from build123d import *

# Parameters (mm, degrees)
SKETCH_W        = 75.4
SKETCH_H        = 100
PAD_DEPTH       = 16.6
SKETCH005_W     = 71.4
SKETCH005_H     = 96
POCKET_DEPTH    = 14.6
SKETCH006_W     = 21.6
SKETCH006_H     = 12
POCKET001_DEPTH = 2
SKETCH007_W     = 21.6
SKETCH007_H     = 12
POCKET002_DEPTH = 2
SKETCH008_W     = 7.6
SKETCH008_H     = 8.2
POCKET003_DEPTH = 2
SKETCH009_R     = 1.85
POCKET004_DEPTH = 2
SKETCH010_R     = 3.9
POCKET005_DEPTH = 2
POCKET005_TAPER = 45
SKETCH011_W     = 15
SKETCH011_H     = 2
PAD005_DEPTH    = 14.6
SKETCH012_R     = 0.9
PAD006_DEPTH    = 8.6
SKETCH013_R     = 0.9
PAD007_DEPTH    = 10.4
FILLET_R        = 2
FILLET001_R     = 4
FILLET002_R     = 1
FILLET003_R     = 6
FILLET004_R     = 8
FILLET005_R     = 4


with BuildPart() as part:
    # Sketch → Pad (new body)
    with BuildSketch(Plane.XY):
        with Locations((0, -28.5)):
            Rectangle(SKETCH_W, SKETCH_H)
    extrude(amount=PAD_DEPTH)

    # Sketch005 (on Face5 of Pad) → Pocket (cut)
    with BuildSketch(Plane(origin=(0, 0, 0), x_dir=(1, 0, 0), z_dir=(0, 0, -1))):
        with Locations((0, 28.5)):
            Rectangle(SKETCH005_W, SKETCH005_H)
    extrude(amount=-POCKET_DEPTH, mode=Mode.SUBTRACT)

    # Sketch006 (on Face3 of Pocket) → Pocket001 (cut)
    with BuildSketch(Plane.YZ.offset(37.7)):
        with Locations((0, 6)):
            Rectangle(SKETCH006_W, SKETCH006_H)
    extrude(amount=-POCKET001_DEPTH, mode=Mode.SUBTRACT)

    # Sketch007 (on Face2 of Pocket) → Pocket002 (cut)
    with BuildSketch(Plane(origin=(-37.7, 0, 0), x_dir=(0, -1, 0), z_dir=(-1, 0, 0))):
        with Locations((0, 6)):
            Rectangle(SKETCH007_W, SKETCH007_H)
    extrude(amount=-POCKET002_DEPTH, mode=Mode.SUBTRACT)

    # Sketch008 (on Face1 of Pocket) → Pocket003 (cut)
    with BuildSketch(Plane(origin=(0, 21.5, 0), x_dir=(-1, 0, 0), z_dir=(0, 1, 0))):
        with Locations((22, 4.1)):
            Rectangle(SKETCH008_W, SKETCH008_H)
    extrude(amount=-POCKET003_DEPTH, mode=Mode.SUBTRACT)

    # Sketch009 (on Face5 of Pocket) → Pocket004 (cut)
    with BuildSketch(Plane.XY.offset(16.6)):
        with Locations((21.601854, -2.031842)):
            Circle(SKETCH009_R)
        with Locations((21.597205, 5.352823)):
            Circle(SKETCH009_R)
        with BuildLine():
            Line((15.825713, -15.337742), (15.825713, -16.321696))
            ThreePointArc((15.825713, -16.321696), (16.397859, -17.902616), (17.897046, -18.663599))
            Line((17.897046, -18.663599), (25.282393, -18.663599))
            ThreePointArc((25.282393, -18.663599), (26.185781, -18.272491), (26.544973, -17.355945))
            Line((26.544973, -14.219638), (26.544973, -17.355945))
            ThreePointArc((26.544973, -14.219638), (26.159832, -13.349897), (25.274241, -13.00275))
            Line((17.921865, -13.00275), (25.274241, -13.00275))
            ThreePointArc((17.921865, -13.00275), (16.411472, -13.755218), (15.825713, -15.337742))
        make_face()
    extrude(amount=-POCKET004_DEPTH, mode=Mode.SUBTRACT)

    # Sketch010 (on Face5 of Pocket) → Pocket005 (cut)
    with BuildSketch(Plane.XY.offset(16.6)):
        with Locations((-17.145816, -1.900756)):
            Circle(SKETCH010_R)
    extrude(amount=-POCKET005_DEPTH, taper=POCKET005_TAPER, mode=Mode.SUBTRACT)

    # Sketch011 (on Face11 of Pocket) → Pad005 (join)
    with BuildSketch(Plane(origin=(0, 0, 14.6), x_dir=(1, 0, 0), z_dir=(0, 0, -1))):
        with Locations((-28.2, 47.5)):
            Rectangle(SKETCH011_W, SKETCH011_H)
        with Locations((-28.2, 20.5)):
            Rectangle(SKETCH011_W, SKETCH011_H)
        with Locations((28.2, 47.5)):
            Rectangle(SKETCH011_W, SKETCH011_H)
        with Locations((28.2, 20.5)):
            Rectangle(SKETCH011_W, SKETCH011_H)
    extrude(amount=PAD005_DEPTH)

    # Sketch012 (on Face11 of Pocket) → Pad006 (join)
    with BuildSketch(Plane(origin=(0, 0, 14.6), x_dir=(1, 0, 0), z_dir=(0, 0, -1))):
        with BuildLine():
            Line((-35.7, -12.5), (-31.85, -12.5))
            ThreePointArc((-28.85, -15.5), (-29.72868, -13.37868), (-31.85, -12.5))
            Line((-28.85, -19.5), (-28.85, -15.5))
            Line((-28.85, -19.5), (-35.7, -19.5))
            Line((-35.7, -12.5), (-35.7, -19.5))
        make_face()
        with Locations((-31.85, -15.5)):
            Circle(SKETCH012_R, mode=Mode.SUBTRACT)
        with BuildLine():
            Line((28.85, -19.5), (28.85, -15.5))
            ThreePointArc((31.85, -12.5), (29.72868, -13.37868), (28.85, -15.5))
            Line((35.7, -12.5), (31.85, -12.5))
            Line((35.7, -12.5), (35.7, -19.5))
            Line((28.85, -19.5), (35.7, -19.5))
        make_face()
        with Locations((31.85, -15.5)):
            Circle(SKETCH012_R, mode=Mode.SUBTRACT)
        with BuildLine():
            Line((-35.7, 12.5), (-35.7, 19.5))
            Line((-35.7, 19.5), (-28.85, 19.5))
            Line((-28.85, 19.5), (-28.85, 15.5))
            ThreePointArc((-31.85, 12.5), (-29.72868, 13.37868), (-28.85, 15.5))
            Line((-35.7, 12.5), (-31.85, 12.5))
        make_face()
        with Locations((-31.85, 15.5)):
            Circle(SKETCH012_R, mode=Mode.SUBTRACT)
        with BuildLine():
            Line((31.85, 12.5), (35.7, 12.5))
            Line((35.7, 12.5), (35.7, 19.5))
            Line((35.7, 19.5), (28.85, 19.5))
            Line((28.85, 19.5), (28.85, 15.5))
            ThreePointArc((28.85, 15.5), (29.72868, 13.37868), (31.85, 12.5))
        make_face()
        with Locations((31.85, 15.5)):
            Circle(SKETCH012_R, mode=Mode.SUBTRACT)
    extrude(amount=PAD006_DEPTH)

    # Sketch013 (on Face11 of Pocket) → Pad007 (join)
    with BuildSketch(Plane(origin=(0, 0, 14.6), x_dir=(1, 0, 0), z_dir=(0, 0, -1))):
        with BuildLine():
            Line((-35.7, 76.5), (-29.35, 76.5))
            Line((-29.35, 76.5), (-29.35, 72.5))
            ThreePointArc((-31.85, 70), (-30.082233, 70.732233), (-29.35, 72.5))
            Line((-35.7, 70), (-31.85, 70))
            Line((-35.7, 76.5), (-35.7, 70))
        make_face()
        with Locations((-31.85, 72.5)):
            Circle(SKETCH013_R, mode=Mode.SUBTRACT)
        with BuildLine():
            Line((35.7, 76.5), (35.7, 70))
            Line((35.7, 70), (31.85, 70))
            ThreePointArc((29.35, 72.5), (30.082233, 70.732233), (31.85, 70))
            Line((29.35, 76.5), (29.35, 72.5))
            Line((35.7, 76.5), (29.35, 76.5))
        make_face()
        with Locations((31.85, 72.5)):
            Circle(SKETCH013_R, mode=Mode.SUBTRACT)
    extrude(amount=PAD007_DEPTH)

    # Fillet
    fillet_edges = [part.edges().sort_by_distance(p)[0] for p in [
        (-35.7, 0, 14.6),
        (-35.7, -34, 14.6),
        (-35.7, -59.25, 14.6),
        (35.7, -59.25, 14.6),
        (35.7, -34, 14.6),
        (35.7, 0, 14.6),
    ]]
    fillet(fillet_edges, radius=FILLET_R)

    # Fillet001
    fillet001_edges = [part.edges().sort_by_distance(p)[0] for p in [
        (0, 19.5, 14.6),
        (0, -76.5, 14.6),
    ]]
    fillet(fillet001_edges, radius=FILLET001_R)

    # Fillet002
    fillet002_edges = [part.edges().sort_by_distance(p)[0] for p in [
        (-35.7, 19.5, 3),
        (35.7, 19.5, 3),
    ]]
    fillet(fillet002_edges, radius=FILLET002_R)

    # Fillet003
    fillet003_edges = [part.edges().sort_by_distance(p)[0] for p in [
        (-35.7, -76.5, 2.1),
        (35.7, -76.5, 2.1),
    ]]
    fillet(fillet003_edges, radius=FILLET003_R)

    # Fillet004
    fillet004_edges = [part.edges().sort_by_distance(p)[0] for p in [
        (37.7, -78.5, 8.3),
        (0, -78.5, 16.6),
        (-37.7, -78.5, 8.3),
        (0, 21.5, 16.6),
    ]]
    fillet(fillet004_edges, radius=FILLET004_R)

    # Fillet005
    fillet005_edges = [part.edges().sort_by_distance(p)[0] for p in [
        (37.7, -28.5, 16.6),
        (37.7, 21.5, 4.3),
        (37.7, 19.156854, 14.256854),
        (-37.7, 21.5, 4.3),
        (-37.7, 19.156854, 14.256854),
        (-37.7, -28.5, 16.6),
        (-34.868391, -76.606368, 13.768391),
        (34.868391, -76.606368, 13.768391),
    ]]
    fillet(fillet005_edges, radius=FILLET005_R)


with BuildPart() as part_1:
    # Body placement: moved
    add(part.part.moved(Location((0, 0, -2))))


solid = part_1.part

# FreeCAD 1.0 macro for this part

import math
import FreeCAD as App
import Part
import Sketcher
Q = App.Units.Quantity


def edges_at(feature, points):
    """Names of the edges that pass closest to the given points."""
    edges = feature.Shape.Edges
    near = lambda p: min(range(len(edges)), key=lambda i: edges[i].distToShape(Part.Vertex(*p))[0])
    return sorted({f"Edge{near(p) + 1}" for p in points})


def add_polygon(sketch, points):
    """Adds a closed chain of lines whose ends are joined by coincident constraints."""
    first, n = sketch.GeometryCount, len(points)
    for a, b in zip(points, points[1:] + points[:1]):
        sketch.addGeometry(Part.LineSegment(App.Vector(*a, 0), App.Vector(*b, 0)), False)
    for i in range(n):
        sketch.addConstraint(Sketcher.Constraint("Coincident", first + i, 2, first + (i + 1) % n, 1))

doc = App.newDocument("Part")
body = doc.addObject("PartDesign::Body", "Body")

sketch1 = doc.addObject("Sketcher::SketchObject", "Sketch")
body.addObject(sketch1)
sketch1.AttachmentSupport = (doc.XY_Plane, [""])
sketch1.MapMode = "FlatFace"
add_polygon(sketch1, [(-38, 22), (-38, -78), (38, -78), (38, 22)])
sketch1.addConstraint(Sketcher.Constraint("Vertical", 0))
sketch1.addConstraint(Sketcher.Constraint("Horizontal", 1))
sketch1.addConstraint(Sketcher.Constraint("Vertical", 2))
sketch1.addConstraint(Sketcher.Constraint("Horizontal", 3))
sketch1.addConstraint(Sketcher.Constraint("DistanceY", 0, 2, 0, 1, Q("100 mm")))
sketch1.addConstraint(Sketcher.Constraint("DistanceX", 1, 1, 1, 2, Q("75.4 mm")))
sketch1.addConstraint(Sketcher.Constraint("DistanceX", 0, 2, -1, 1, Q("37.7 mm")))
sketch1.addConstraint(Sketcher.Constraint("DistanceY", 0, 2, -1, 1, Q("78.5 mm")))
pad1 = doc.addObject("PartDesign::Pad", "Pad")
body.addObject(pad1)
pad1.Profile = sketch1
pad1.Length = 16.6

sketch2 = doc.addObject("Sketcher::SketchObject", "Sketch001")
body.addObject(sketch2)
sketch2.AttachmentSupport = (doc.XY_Plane, [""])
sketch2.MapMode = "FlatFace"
add_polygon(sketch2, [(-36, -76), (-36, 20), (36, 20), (36, -76)])
sketch2.addConstraint(Sketcher.Constraint("Vertical", 0))
sketch2.addConstraint(Sketcher.Constraint("Horizontal", 1))
sketch2.addConstraint(Sketcher.Constraint("Vertical", 2))
sketch2.addConstraint(Sketcher.Constraint("Horizontal", 3))
sketch2.addConstraint(Sketcher.Constraint("DistanceY", 0, 1, 0, 2, Q("96 mm")))
sketch2.addConstraint(Sketcher.Constraint("DistanceX", 1, 1, 1, 2, Q("71.4 mm")))
sketch2.addConstraint(Sketcher.Constraint("DistanceX", 0, 2, -1, 1, Q("35.7 mm")))
sketch2.addConstraint(Sketcher.Constraint("DistanceY", -1, 1, 0, 2, Q("19.5 mm")))
pocket1 = doc.addObject("PartDesign::Pocket", "Pocket")
body.addObject(pocket1)
pocket1.Profile = sketch2
pocket1.Length = 14.6
pocket1.Reversed = True

sketch3 = doc.addObject("Sketcher::SketchObject", "Sketch002")
body.addObject(sketch3)
sketch3.AttachmentSupport = (doc.YZ_Plane, [""])
sketch3.MapMode = "FlatFace"
sketch3.AttachmentOffset = App.Placement(App.Vector(0, 0, 37.7), App.Rotation())
add_polygon(sketch3, [(-11, 12), (-11, 0), (11, 0), (11, 12)])
sketch3.addConstraint(Sketcher.Constraint("Vertical", 0))
sketch3.addConstraint(Sketcher.Constraint("Horizontal", 1))
sketch3.addConstraint(Sketcher.Constraint("Vertical", 2))
sketch3.addConstraint(Sketcher.Constraint("Horizontal", 3))
sketch3.addConstraint(Sketcher.Constraint("Symmetric", 0, 2, 1, 2, -1, 1))
sketch3.addConstraint(Sketcher.Constraint("DistanceY", 0, 2, 0, 1, Q("12 mm")))
sketch3.addConstraint(Sketcher.Constraint("DistanceX", 1, 1, 1, 2, Q("21.6 mm")))
pocket2 = doc.addObject("PartDesign::Pocket", "Pocket001")
body.addObject(pocket2)
pocket2.Profile = sketch3
pocket2.Length = 2

sketch4 = doc.addObject("Sketcher::SketchObject", "Sketch003")
body.addObject(sketch4)
sketch4.AttachmentSupport = (doc.YZ_Plane, [""])
sketch4.MapMode = "FlatFace"
sketch4.AttachmentOffset = App.Placement(App.Vector(0, 0, -37.7), App.Rotation())
add_polygon(sketch4, [(11, 12), (11, 0), (-11, 0), (-11, 12)])
sketch4.addConstraint(Sketcher.Constraint("Vertical", 0))
sketch4.addConstraint(Sketcher.Constraint("Horizontal", 1))
sketch4.addConstraint(Sketcher.Constraint("Vertical", 2))
sketch4.addConstraint(Sketcher.Constraint("Horizontal", 3))
sketch4.addConstraint(Sketcher.Constraint("Symmetric", 0, 2, 1, 2, -1, 1))
sketch4.addConstraint(Sketcher.Constraint("DistanceY", 0, 2, 0, 1, Q("12 mm")))
sketch4.addConstraint(Sketcher.Constraint("DistanceX", 1, 2, 1, 1, Q("21.6 mm")))
pocket3 = doc.addObject("PartDesign::Pocket", "Pocket002")
body.addObject(pocket3)
pocket3.Profile = sketch4
pocket3.Length = 2
pocket3.Reversed = True

sketch5 = doc.addObject("Sketcher::SketchObject", "Sketch004")
body.addObject(sketch5)
sketch5.AttachmentSupport = (doc.XZ_Plane, [""])
sketch5.MapMode = "FlatFace"
sketch5.AttachmentOffset = App.Placement(App.Vector(0, 0, -21.5), App.Rotation())
add_polygon(sketch5, [(-18, 8), (-18, 0), (-26, 0), (-26, 8)])
sketch5.addConstraint(Sketcher.Constraint("Vertical", 0))
sketch5.addConstraint(Sketcher.Constraint("Horizontal", 1))
sketch5.addConstraint(Sketcher.Constraint("Vertical", 2))
sketch5.addConstraint(Sketcher.Constraint("Horizontal", 3))
sketch5.addConstraint(Sketcher.Constraint("PointOnObject", 0, 2, -1))
sketch5.addConstraint(Sketcher.Constraint("DistanceX", 1, 2, 1, 1, Q("7.6 mm")))
sketch5.addConstraint(Sketcher.Constraint("DistanceY", 0, 2, 0, 1, Q("8.2 mm")))
sketch5.addConstraint(Sketcher.Constraint("DistanceX", 0, 2, -1, 1, Q("18.2 mm")))
pocket4 = doc.addObject("PartDesign::Pocket", "Pocket003")
body.addObject(pocket4)
pocket4.Profile = sketch5
pocket4.Length = 2
pocket4.Reversed = True

sketch6 = doc.addObject("Sketcher::SketchObject", "Sketch005")
body.addObject(sketch6)
sketch6.AttachmentSupport = (doc.XY_Plane, [""])
sketch6.MapMode = "FlatFace"
sketch6.AttachmentOffset = App.Placement(App.Vector(0, 0, 16.6), App.Rotation())
sketch6.addGeometry(Part.Circle(App.Vector(21.6, -2, 0), App.Vector(0, 0, 1), 1.9), False)
sketch6.addGeometry(Part.Circle(App.Vector(21.6, 5.4, 0), App.Vector(0, 0, 1), 1.9), False)
sketch6.addGeometry(Part.LineSegment(App.Vector(15.8, -15.3, 0), App.Vector(15.8, -16.3, 0)), False)
sketch6.addGeometry(Part.ArcOfCircle(Part.Circle(App.Vector(18.1, -16.4, 0), App.Vector(0, 0, 1), 2.3), math.radians(178), math.radians(265)), False)
sketch6.addGeometry(Part.LineSegment(App.Vector(17.9, -18.7, 0), App.Vector(25.3, -18.7, 0)), False)
sketch6.addGeometry(Part.ArcOfCircle(Part.Circle(App.Vector(25.3, -17.4, 0), App.Vector(0, 0, 1), 1.3), math.radians(-89), math.radians(1)), False)
sketch6.addGeometry(Part.LineSegment(App.Vector(26.5, -17.4, 0), App.Vector(26.5, -14.2, 0)), False)
sketch6.addGeometry(Part.ArcOfCircle(Part.Circle(App.Vector(25.3, -14.3, 0), App.Vector(0, 0, 1), 1.3), math.radians(2), math.radians(91)), False)
sketch6.addGeometry(Part.LineSegment(App.Vector(25.3, -13, 0), App.Vector(17.9, -13, 0)), False)
sketch6.addGeometry(Part.ArcOfCircle(Part.Circle(App.Vector(18.1, -15.3, 0), App.Vector(0, 0, 1), 2.3), math.radians(95), math.radians(181)), False)
sketch6.addConstraint(Sketcher.Constraint("Coincident", 2, 2, 3, 1))
sketch6.addConstraint(Sketcher.Constraint("Coincident", 3, 2, 4, 1))
sketch6.addConstraint(Sketcher.Constraint("Coincident", 4, 2, 5, 1))
sketch6.addConstraint(Sketcher.Constraint("Coincident", 5, 2, 6, 1))
sketch6.addConstraint(Sketcher.Constraint("Coincident", 6, 2, 7, 1))
sketch6.addConstraint(Sketcher.Constraint("Coincident", 7, 2, 8, 1))
sketch6.addConstraint(Sketcher.Constraint("Coincident", 8, 2, 9, 1))
sketch6.addConstraint(Sketcher.Constraint("Coincident", 9, 2, 2, 1))
sketch6.addConstraint(Sketcher.Constraint("Vertical", 2))
sketch6.addConstraint(Sketcher.Constraint("Horizontal", 4))
sketch6.addConstraint(Sketcher.Constraint("Vertical", 6))
sketch6.addConstraint(Sketcher.Constraint("Horizontal", 8))
sketch6.addConstraint(Sketcher.Constraint("Equal", 0, 1))
sketch6.addConstraint(Sketcher.Constraint("Diameter", 0, Q("3.7 mm")))
sketch6.addConstraint(Sketcher.Constraint("Radius", 7, Q("1.250441 mm")))
sketch6.addConstraint(Sketcher.Constraint("Radius", 3, Q("2.283948 mm")))
sketch6.addConstraint(Sketcher.Constraint("Radius", 5, Q("1.281063 mm")))
sketch6.addConstraint(Sketcher.Constraint("Radius", 9, Q("2.291647 mm")))
sketch6.addConstraint(Sketcher.Constraint("DistanceY", 3, 2, -1, 1, Q("18.663599 mm")))
sketch6.addConstraint(Sketcher.Constraint("DistanceX", 3, 3, 0, 3, Q("3.493199 mm")))
sketch6.addConstraint(Sketcher.Constraint("DistanceY", 3, 3, 1, 3, Q("21.742298 mm")))
sketch6.addConstraint(Sketcher.Constraint("DistanceX", 9, 3, 7, 3, Q("7.1782 mm")))
sketch6.addConstraint(Sketcher.Constraint("DistanceX", 4, 1, 4, 2, Q("7.385347 mm")))
sketch6.addConstraint(Sketcher.Constraint("DistanceX", 8, 2, 8, 1, Q("7.352376 mm")))
sketch6.addConstraint(Sketcher.Constraint("DistanceY", 2, 2, 2, 1, Q("0.983954 mm")))
sketch6.addConstraint(Sketcher.Constraint("DistanceY", 6, 1, 6, 2, Q("3.136307 mm")))
sketch6.addConstraint(Sketcher.Constraint("DistanceX", -1, 1, 5, 3, Q("25.264188 mm")))
sketch6.addConstraint(Sketcher.Constraint("DistanceY", 7, 3, -1, 1, Q("14.253019 mm")))
sketch6.addConstraint(Sketcher.Constraint("DistanceX", -1, 1, 7, 2, Q("25.274241 mm")))
sketch6.addConstraint(Sketcher.Constraint("DistanceX", 1, 3, 0, 3, Q("0.004649 mm")))
sketch6.addConstraint(Sketcher.Constraint("DistanceY", 5, 3, 3, 3, Q("0.99319 mm")))
sketch6.addConstraint(Sketcher.Constraint("DistanceX", 5, 3, 7, 3, Q("0.030789 mm")))
sketch6.addConstraint(Sketcher.Constraint("DistanceY", 9, 3, 0, 3, Q("13.254251 mm")))
sketch6.addConstraint(Sketcher.Constraint("DistanceX", 2, 2, 3, 3, Q("2.282942 mm")))
pocket5 = doc.addObject("PartDesign::Pocket", "Pocket004")
body.addObject(pocket5)
pocket5.Profile = sketch6
pocket5.Length = 2

sketch7 = doc.addObject("Sketcher::SketchObject", "Sketch006")
body.addObject(sketch7)
sketch7.AttachmentSupport = (doc.XY_Plane, [""])
sketch7.MapMode = "FlatFace"
sketch7.AttachmentOffset = App.Placement(App.Vector(0, 0, 16.6), App.Rotation())
sketch7.addGeometry(Part.Circle(App.Vector(-17.1, -1.9, 0), App.Vector(0, 0, 1), 3.9), False)
sketch7.addConstraint(Sketcher.Constraint("Diameter", 0, Q("7.8 mm")))
sketch7.addConstraint(Sketcher.Constraint("DistanceX", 0, 3, -1, 1, Q("17.145816 mm")))
sketch7.addConstraint(Sketcher.Constraint("DistanceY", 0, 3, -1, 1, Q("1.900756 mm")))
pocket6 = doc.addObject("PartDesign::Pocket", "Pocket005")
body.addObject(pocket6)
pocket6.Profile = sketch7
pocket6.Length = 2
pocket6.TaperAngle = -45

sketch8 = doc.addObject("Sketcher::SketchObject", "Sketch007")
body.addObject(sketch8)
sketch8.AttachmentSupport = (doc.XY_Plane, [""])
sketch8.MapMode = "FlatFace"
sketch8.AttachmentOffset = App.Placement(App.Vector(0, 0, 14.6), App.Rotation())
add_polygon(sketch8, [(-35.7, -48.5), (-35.7, -46.5), (-20.7, -46.5), (-20.7, -48.5)])
add_polygon(sketch8, [(-35.7, -21.5), (-35.7, -19.5), (-20.7, -19.5), (-20.7, -21.5)])
add_polygon(sketch8, [(20.7, -48.5), (20.7, -46.5), (35.7, -46.5), (35.7, -48.5)])
add_polygon(sketch8, [(20.7, -21.5), (20.7, -19.5), (35.7, -19.5), (35.7, -21.5)])
sketch8.addConstraint(Sketcher.Constraint("Vertical", 0))
sketch8.addConstraint(Sketcher.Constraint("Horizontal", 1))
sketch8.addConstraint(Sketcher.Constraint("Vertical", 2))
sketch8.addConstraint(Sketcher.Constraint("Horizontal", 3))
sketch8.addConstraint(Sketcher.Constraint("Vertical", 4))
sketch8.addConstraint(Sketcher.Constraint("Horizontal", 5))
sketch8.addConstraint(Sketcher.Constraint("Vertical", 6))
sketch8.addConstraint(Sketcher.Constraint("Horizontal", 7))
sketch8.addConstraint(Sketcher.Constraint("Vertical", 8))
sketch8.addConstraint(Sketcher.Constraint("Horizontal", 9))
sketch8.addConstraint(Sketcher.Constraint("Vertical", 10))
sketch8.addConstraint(Sketcher.Constraint("Horizontal", 11))
sketch8.addConstraint(Sketcher.Constraint("Vertical", 12))
sketch8.addConstraint(Sketcher.Constraint("Horizontal", 13))
sketch8.addConstraint(Sketcher.Constraint("Vertical", 14))
sketch8.addConstraint(Sketcher.Constraint("Horizontal", 15))
sketch8.addConstraint(Sketcher.Constraint("Symmetric", 1, 2, 8, 2, -2))
sketch8.addConstraint(Sketcher.Constraint("Symmetric", 3, 2, 10, 2, -2))
sketch8.addConstraint(Sketcher.Constraint("Symmetric", 5, 2, 12, 2, -2))
sketch8.addConstraint(Sketcher.Constraint("Symmetric", 7, 2, 14, 2, -2))
sketch8.addConstraint(Sketcher.Constraint("Vertical", 3, 2, 4, 2))
sketch8.addConstraint(Sketcher.Constraint("Vertical", 2, 2, 5, 2))
sketch8.addConstraint(Sketcher.Constraint("Equal", 2, 4))
sketch8.addConstraint(Sketcher.Constraint("DistanceX", 1, 1, 1, 2, Q("15 mm")))
sketch8.addConstraint(Sketcher.Constraint("DistanceY", 0, 1, 0, 2, Q("2 mm")))
sketch8.addConstraint(Sketcher.Constraint("DistanceY", 0, 2, 4, 2, Q("27 mm")))
sketch8.addConstraint(Sketcher.Constraint("DistanceX", 0, 2, -1, 1, Q("35.7 mm")))
sketch8.addConstraint(Sketcher.Constraint("DistanceY", 0, 2, -1, 1, Q("46.5 mm")))
pad2 = doc.addObject("PartDesign::Pad", "Pad001")
body.addObject(pad2)
pad2.Profile = sketch8
pad2.Length = 14.6
pad2.Reversed = True

sketch9 = doc.addObject("Sketcher::SketchObject", "Sketch008")
body.addObject(sketch9)
sketch9.AttachmentSupport = (doc.XY_Plane, [""])
sketch9.MapMode = "FlatFace"
sketch9.AttachmentOffset = App.Placement(App.Vector(0, 0, 14.6), App.Rotation())
sketch9.addGeometry(Part.LineSegment(App.Vector(-31.9, 12.5, 0), App.Vector(-35.7, 12.5, 0)), False)
sketch9.addGeometry(Part.LineSegment(App.Vector(-35.7, 12.5, 0), App.Vector(-35.7, 19.5, 0)), False)
sketch9.addGeometry(Part.LineSegment(App.Vector(-35.7, 19.5, 0), App.Vector(-28.9, 19.5, 0)), False)
sketch9.addGeometry(Part.LineSegment(App.Vector(-28.9, 19.5, 0), App.Vector(-28.9, 15.5, 0)), False)
sketch9.addGeometry(Part.ArcOfCircle(Part.Circle(App.Vector(-31.9, 15.5, 0), App.Vector(0, 0, 1), 3), math.radians(-90), math.radians(0)), False)
sketch9.addGeometry(Part.Circle(App.Vector(-31.9, 15.5, 0), App.Vector(0, 0, 1), 0.9), False)
sketch9.addGeometry(Part.LineSegment(App.Vector(28.9, 15.5, 0), App.Vector(28.9, 19.5, 0)), False)
sketch9.addGeometry(Part.LineSegment(App.Vector(28.9, 19.5, 0), App.Vector(35.7, 19.5, 0)), False)
sketch9.addGeometry(Part.LineSegment(App.Vector(35.7, 19.5, 0), App.Vector(35.7, 12.5, 0)), False)
sketch9.addGeometry(Part.LineSegment(App.Vector(35.7, 12.5, 0), App.Vector(31.9, 12.5, 0)), False)
sketch9.addGeometry(Part.ArcOfCircle(Part.Circle(App.Vector(31.9, 15.5, 0), App.Vector(0, 0, 1), 3), math.radians(-180), math.radians(-90)), False)
sketch9.addGeometry(Part.Circle(App.Vector(31.9, 15.5, 0), App.Vector(0, 0, 1), 0.9), False)
sketch9.addGeometry(Part.LineSegment(App.Vector(-35.7, -19.5, 0), App.Vector(-35.7, -12.5, 0)), False)
sketch9.addGeometry(Part.LineSegment(App.Vector(-35.7, -12.5, 0), App.Vector(-31.9, -12.5, 0)), False)
sketch9.addGeometry(Part.ArcOfCircle(Part.Circle(App.Vector(-31.9, -15.5, 0), App.Vector(0, 0, 1), 3), math.radians(0), math.radians(90)), False)
sketch9.addGeometry(Part.LineSegment(App.Vector(-28.9, -15.5, 0), App.Vector(-28.9, -19.5, 0)), False)
sketch9.addGeometry(Part.LineSegment(App.Vector(-28.9, -19.5, 0), App.Vector(-35.7, -19.5, 0)), False)
sketch9.addGeometry(Part.Circle(App.Vector(-31.9, -15.5, 0), App.Vector(0, 0, 1), 0.9), False)
sketch9.addGeometry(Part.LineSegment(App.Vector(31.9, -12.5, 0), App.Vector(35.7, -12.5, 0)), False)
sketch9.addGeometry(Part.LineSegment(App.Vector(35.7, -12.5, 0), App.Vector(35.7, -19.5, 0)), False)
sketch9.addGeometry(Part.LineSegment(App.Vector(35.7, -19.5, 0), App.Vector(28.9, -19.5, 0)), False)
sketch9.addGeometry(Part.LineSegment(App.Vector(28.9, -19.5, 0), App.Vector(28.9, -15.5, 0)), False)
sketch9.addGeometry(Part.ArcOfCircle(Part.Circle(App.Vector(31.9, -15.5, 0), App.Vector(0, 0, 1), 3), math.radians(90), math.radians(180)), False)
sketch9.addGeometry(Part.Circle(App.Vector(31.9, -15.5, 0), App.Vector(0, 0, 1), 0.9), False)
sketch9.addConstraint(Sketcher.Constraint("Coincident", 0, 2, 1, 1))
sketch9.addConstraint(Sketcher.Constraint("Coincident", 1, 2, 2, 1))
sketch9.addConstraint(Sketcher.Constraint("Coincident", 2, 2, 3, 1))
sketch9.addConstraint(Sketcher.Constraint("Tangent", 3, 2, 4, 2))
sketch9.addConstraint(Sketcher.Constraint("Tangent", 4, 1, 0, 1))
sketch9.addConstraint(Sketcher.Constraint("Coincident", 6, 2, 7, 1))
sketch9.addConstraint(Sketcher.Constraint("Coincident", 7, 2, 8, 1))
sketch9.addConstraint(Sketcher.Constraint("Coincident", 8, 2, 9, 1))
sketch9.addConstraint(Sketcher.Constraint("Tangent", 9, 2, 10, 2))
sketch9.addConstraint(Sketcher.Constraint("Tangent", 10, 1, 6, 1))
sketch9.addConstraint(Sketcher.Constraint("Coincident", 12, 2, 13, 1))
sketch9.addConstraint(Sketcher.Constraint("Tangent", 13, 2, 14, 2))
sketch9.addConstraint(Sketcher.Constraint("Tangent", 14, 1, 15, 1))
sketch9.addConstraint(Sketcher.Constraint("Coincident", 15, 2, 16, 1))
sketch9.addConstraint(Sketcher.Constraint("Coincident", 16, 2, 12, 1))
sketch9.addConstraint(Sketcher.Constraint("Coincident", 18, 2, 19, 1))
sketch9.addConstraint(Sketcher.Constraint("Coincident", 19, 2, 20, 1))
sketch9.addConstraint(Sketcher.Constraint("Coincident", 20, 2, 21, 1))
sketch9.addConstraint(Sketcher.Constraint("Tangent", 21, 2, 22, 2))
sketch9.addConstraint(Sketcher.Constraint("Tangent", 22, 1, 18, 1))
sketch9.addConstraint(Sketcher.Constraint("Horizontal", 0))
sketch9.addConstraint(Sketcher.Constraint("Vertical", 1))
sketch9.addConstraint(Sketcher.Constraint("Horizontal", 2))
sketch9.addConstraint(Sketcher.Constraint("Vertical", 3))
sketch9.addConstraint(Sketcher.Constraint("Vertical", 6))
sketch9.addConstraint(Sketcher.Constraint("Horizontal", 7))
sketch9.addConstraint(Sketcher.Constraint("Vertical", 8))
sketch9.addConstraint(Sketcher.Constraint("Horizontal", 9))
sketch9.addConstraint(Sketcher.Constraint("Vertical", 12))
sketch9.addConstraint(Sketcher.Constraint("Horizontal", 13))
sketch9.addConstraint(Sketcher.Constraint("Vertical", 15))
sketch9.addConstraint(Sketcher.Constraint("Horizontal", 16))
sketch9.addConstraint(Sketcher.Constraint("Horizontal", 18))
sketch9.addConstraint(Sketcher.Constraint("Vertical", 19))
sketch9.addConstraint(Sketcher.Constraint("Horizontal", 20))
sketch9.addConstraint(Sketcher.Constraint("Vertical", 21))
sketch9.addConstraint(Sketcher.Constraint("Coincident", 5, 3, 4, 3))
sketch9.addConstraint(Sketcher.Constraint("Coincident", 11, 3, 10, 3))
sketch9.addConstraint(Sketcher.Constraint("Coincident", 17, 3, 14, 3))
sketch9.addConstraint(Sketcher.Constraint("Coincident", 23, 3, 22, 3))
sketch9.addConstraint(Sketcher.Constraint("Equal", 4, 10))
sketch9.addConstraint(Sketcher.Constraint("Equal", 5, 11))
sketch9.addConstraint(Sketcher.Constraint("Equal", 10, 14))
sketch9.addConstraint(Sketcher.Constraint("Equal", 11, 17))
sketch9.addConstraint(Sketcher.Constraint("Equal", 14, 22))
sketch9.addConstraint(Sketcher.Constraint("Equal", 17, 23))
sketch9.addConstraint(Sketcher.Constraint("Symmetric", 10, 3, 14, 3, -1, 1))
sketch9.addConstraint(Sketcher.Constraint("Symmetric", 4, 3, 22, 3, -1, 1))
sketch9.addConstraint(Sketcher.Constraint("Symmetric", 7, 2, 16, 2, -1, 1))
sketch9.addConstraint(Sketcher.Constraint("Symmetric", 1, 2, 19, 2, -1, 1))
sketch9.addConstraint(Sketcher.Constraint("Symmetric", 4, 3, 10, 3, -2))
sketch9.addConstraint(Sketcher.Constraint("Symmetric", 1, 2, 7, 2, -2))
sketch9.addConstraint(Sketcher.Constraint("Radius", 4, Q("3.000001 mm")))
sketch9.addConstraint(Sketcher.Constraint("Diameter", 5, Q("1.8 mm")))
sketch9.addConstraint(Sketcher.Constraint("DistanceY", 1, 1, 1, 2, Q("7 mm")))
sketch9.addConstraint(Sketcher.Constraint("DistanceY", 14, 3, 5, 3, Q("31.000001 mm")))
sketch9.addConstraint(Sketcher.Constraint("DistanceX", 0, 2, 0, 1, Q("3.85 mm")))
sketch9.addConstraint(Sketcher.Constraint("DistanceX", 0, 2, -1, 1, Q("35.7 mm")))
pad3 = doc.addObject("PartDesign::Pad", "Pad002")
body.addObject(pad3)
pad3.Profile = sketch9
pad3.Length = 8.6
pad3.Reversed = True

sketch10 = doc.addObject("Sketcher::SketchObject", "Sketch009")
body.addObject(sketch10)
sketch10.AttachmentSupport = (doc.XY_Plane, [""])
sketch10.MapMode = "FlatFace"
sketch10.AttachmentOffset = App.Placement(App.Vector(0, 0, 14.6), App.Rotation())
sketch10.addGeometry(Part.LineSegment(App.Vector(-29.4, -76.5, 0), App.Vector(-35.7, -76.5, 0)), False)
sketch10.addGeometry(Part.LineSegment(App.Vector(-35.7, -76.5, 0), App.Vector(-35.7, -70, 0)), False)
sketch10.addGeometry(Part.LineSegment(App.Vector(-35.7, -70, 0), App.Vector(-31.9, -70, 0)), False)
sketch10.addGeometry(Part.ArcOfCircle(Part.Circle(App.Vector(-31.8, -72.5, 0), App.Vector(0, 0, 1), 2.5), math.radians(0), math.radians(90)), False)
sketch10.addGeometry(Part.LineSegment(App.Vector(-29.4, -72.5, 0), App.Vector(-29.4, -76.5, 0)), False)
sketch10.addGeometry(Part.Circle(App.Vector(-31.9, -72.5, 0), App.Vector(0, 0, 1), 0.9), False)
sketch10.addGeometry(Part.LineSegment(App.Vector(35.7, -70, 0), App.Vector(35.7, -76.5, 0)), False)
sketch10.addGeometry(Part.LineSegment(App.Vector(35.7, -76.5, 0), App.Vector(29.4, -76.5, 0)), False)
sketch10.addGeometry(Part.LineSegment(App.Vector(29.4, -76.5, 0), App.Vector(29.4, -72.5, 0)), False)
sketch10.addGeometry(Part.ArcOfCircle(Part.Circle(App.Vector(31.8, -72.5, 0), App.Vector(0, 0, 1), 2.5), math.radians(90), math.radians(180)), False)
sketch10.addGeometry(Part.LineSegment(App.Vector(31.9, -70, 0), App.Vector(35.7, -70, 0)), False)
sketch10.addGeometry(Part.Circle(App.Vector(31.9, -72.5, 0), App.Vector(0, 0, 1), 0.9), False)
sketch10.addConstraint(Sketcher.Constraint("Coincident", 0, 2, 1, 1))
sketch10.addConstraint(Sketcher.Constraint("Coincident", 1, 2, 2, 1))
sketch10.addConstraint(Sketcher.Constraint("Tangent", 2, 2, 3, 2))
sketch10.addConstraint(Sketcher.Constraint("Tangent", 3, 1, 4, 1))
sketch10.addConstraint(Sketcher.Constraint("Coincident", 4, 2, 0, 1))
sketch10.addConstraint(Sketcher.Constraint("Coincident", 6, 2, 7, 1))
sketch10.addConstraint(Sketcher.Constraint("Coincident", 7, 2, 8, 1))
sketch10.addConstraint(Sketcher.Constraint("Tangent", 8, 2, 9, 2))
sketch10.addConstraint(Sketcher.Constraint("Tangent", 9, 1, 10, 1))
sketch10.addConstraint(Sketcher.Constraint("Coincident", 10, 2, 6, 1))
sketch10.addConstraint(Sketcher.Constraint("Horizontal", 0))
sketch10.addConstraint(Sketcher.Constraint("Vertical", 1))
sketch10.addConstraint(Sketcher.Constraint("Horizontal", 2))
sketch10.addConstraint(Sketcher.Constraint("Vertical", 4))
sketch10.addConstraint(Sketcher.Constraint("Vertical", 6))
sketch10.addConstraint(Sketcher.Constraint("Horizontal", 7))
sketch10.addConstraint(Sketcher.Constraint("Vertical", 8))
sketch10.addConstraint(Sketcher.Constraint("Horizontal", 10))
sketch10.addConstraint(Sketcher.Constraint("Coincident", 5, 3, 3, 3))
sketch10.addConstraint(Sketcher.Constraint("Coincident", 11, 3, 9, 3))
sketch10.addConstraint(Sketcher.Constraint("Equal", 3, 9))
sketch10.addConstraint(Sketcher.Constraint("Equal", 5, 11))
sketch10.addConstraint(Sketcher.Constraint("Symmetric", 3, 3, 9, 3, -2))
sketch10.addConstraint(Sketcher.Constraint("Symmetric", 0, 2, 6, 2, -2))
sketch10.addConstraint(Sketcher.Constraint("Diameter", 5, Q("1.8 mm")))
sketch10.addConstraint(Sketcher.Constraint("Radius", 3, Q("2.5 mm")))
sketch10.addConstraint(Sketcher.Constraint("DistanceY", 4, 2, 4, 1, Q("4 mm")))
sketch10.addConstraint(Sketcher.Constraint("DistanceY", 1, 2, -1, 1, Q("70 mm")))
sketch10.addConstraint(Sketcher.Constraint("DistanceX", 0, 2, 0, 1, Q("6.35 mm")))
sketch10.addConstraint(Sketcher.Constraint("DistanceX", 0, 2, -1, 1, Q("35.7 mm")))
pad4 = doc.addObject("PartDesign::Pad", "Pad003")
body.addObject(pad4)
pad4.Profile = sketch10
pad4.Length = 10.4
pad4.Reversed = True
doc.recompute()

fillet = doc.addObject("PartDesign::Fillet", "Fillet")
body.addObject(fillet)
fillet.Base = (pad4, edges_at(pad4, [
    (-35.7, 0, 14.6),
    (-35.7, -34, 14.6),
    (-35.7, -59.25, 14.6),
    (35.7, -59.25, 14.6),
    (35.7, -34, 14.6),
    (35.7, 0, 14.6),
]))
fillet.Radius = 2
doc.recompute()

fillet2 = doc.addObject("PartDesign::Fillet", "Fillet001")
body.addObject(fillet2)
fillet2.Base = (fillet, edges_at(fillet, [(0, 19.5, 14.6), (0, -76.5, 14.6)]))
fillet2.Radius = 4
doc.recompute()

fillet3 = doc.addObject("PartDesign::Fillet", "Fillet002")
body.addObject(fillet3)
fillet3.Base = (fillet2, edges_at(fillet2, [(-35.7, 19.5, 3), (35.7, 19.5, 3)]))
fillet3.Radius = 1
doc.recompute()

fillet4 = doc.addObject("PartDesign::Fillet", "Fillet003")
body.addObject(fillet4)
fillet4.Base = (fillet3, edges_at(fillet3, [(-35.7, -76.5, 2.1), (35.7, -76.5, 2.1)]))
fillet4.Radius = 6
doc.recompute()

fillet5 = doc.addObject("PartDesign::Fillet", "Fillet004")
body.addObject(fillet5)
fillet5.Base = (fillet4, edges_at(fillet4, [
    (37.7, -78.5, 8.3),
    (0, -78.5, 16.6),
    (-37.7, -78.5, 8.3),
    (0, 21.5, 16.6),
]))
fillet5.Radius = 8
doc.recompute()

fillet6 = doc.addObject("PartDesign::Fillet", "Fillet005")
body.addObject(fillet6)
fillet6.Base = (fillet5, edges_at(fillet5, [
    (37.7, -28.5, 16.6),
    (37.7, 21.5, 4.3),
    (37.7, 19.157, 14.257),
    (-37.7, 21.5, 4.3),
    (-37.7, 19.157, 14.257),
    (-37.7, -28.5, 16.6),
    (-34.868, -76.606, 13.768),
    (34.868, -76.606, 13.768),
]))
fillet6.Radius = 4
body2 = doc.addObject("PartDesign::Body", "Body001")
doc.recompute()

body.Placement = App.Placement(App.Vector(0, 0, -2), App.Rotation(App.Vector(0, 0, 1), 0))
boolean = doc.addObject("PartDesign::Boolean", "Boolean")
body2.addObject(boolean)
boolean.Type = "Fuse"
boolean.addObjects([body])

doc.recompute()
